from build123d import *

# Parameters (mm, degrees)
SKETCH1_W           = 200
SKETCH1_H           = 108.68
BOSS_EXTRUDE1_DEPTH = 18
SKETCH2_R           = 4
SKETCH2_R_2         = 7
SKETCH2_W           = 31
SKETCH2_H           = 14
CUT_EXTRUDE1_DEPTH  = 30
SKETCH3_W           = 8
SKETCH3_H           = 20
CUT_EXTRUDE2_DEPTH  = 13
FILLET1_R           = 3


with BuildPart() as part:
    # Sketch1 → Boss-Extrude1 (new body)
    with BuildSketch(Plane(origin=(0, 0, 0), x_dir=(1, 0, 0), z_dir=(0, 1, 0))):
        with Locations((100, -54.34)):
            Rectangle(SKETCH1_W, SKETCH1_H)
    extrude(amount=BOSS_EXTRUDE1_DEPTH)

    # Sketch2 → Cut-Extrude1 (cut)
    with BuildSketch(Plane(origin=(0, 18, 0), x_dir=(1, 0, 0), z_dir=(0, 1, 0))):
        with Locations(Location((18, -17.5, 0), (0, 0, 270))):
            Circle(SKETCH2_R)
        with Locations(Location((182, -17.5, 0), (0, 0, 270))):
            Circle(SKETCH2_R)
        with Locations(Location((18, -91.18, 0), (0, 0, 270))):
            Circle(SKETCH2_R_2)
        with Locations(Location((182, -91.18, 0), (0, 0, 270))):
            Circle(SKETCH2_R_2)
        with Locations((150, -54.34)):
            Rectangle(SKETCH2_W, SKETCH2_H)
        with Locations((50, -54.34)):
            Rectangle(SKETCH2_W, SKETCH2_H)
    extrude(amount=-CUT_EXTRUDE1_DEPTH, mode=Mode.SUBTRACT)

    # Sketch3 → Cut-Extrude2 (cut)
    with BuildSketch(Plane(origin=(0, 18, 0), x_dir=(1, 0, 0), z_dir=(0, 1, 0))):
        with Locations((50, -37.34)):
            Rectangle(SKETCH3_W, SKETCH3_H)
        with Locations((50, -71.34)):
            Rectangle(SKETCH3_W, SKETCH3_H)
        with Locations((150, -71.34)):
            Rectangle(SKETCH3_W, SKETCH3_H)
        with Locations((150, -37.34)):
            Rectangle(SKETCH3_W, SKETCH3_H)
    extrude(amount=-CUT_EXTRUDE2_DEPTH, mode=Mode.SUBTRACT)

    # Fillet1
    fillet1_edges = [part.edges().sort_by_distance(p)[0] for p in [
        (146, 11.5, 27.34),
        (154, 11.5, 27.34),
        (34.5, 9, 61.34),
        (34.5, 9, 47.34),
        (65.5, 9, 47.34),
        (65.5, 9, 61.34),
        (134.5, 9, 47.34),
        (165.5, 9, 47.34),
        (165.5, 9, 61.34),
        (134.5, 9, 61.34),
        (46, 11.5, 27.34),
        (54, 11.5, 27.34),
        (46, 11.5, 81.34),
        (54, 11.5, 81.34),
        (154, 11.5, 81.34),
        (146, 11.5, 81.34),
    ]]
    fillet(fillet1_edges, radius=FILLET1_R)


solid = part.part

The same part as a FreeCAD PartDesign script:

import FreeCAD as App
import Part
import Sketcher

V = App.Vector


def edges_at(feature, points):
    """Names of the edges that pass closest to the given points."""
    edges = feature.Shape.Edges
    near = lambda p: min(range(len(edges)), key=lambda i: edges[i].distToShape(Part.Vertex(*p))[0])
    return sorted({f"Edge{near(p) + 1}" for p in points})


def add_polygon(sketch, points):
    """Adds a closed chain of lines whose ends are joined by coincident constraints."""
    first, n = sketch.GeometryCount, len(points)
    for a, b in zip(points, points[1:] + points[:1]):
        sketch.addGeometry(Part.LineSegment(App.Vector(*a, 0), App.Vector(*b, 0)), False)
    for i in range(n):
        sketch.addConstraint(Sketcher.Constraint("Coincident", first + i, 2, first + (i + 1) % n, 1))

doc = App.newDocument("Part")
body = doc.addObject("PartDesign::Body", "Body")

# Sketch on XZ plane
sketch1 = doc.addObject("Sketcher::SketchObject", "Sketch")
body.addObject(sketch1)
sketch1.AttachmentSupport = (doc.XZ_Plane, [""])
sketch1.MapMode = "FlatFace"
add_polygon(sketch1, [(0, 0), (0, 109), (200, 109), (200, 0)])  # lines 0-3
sketch1.addConstraint([
    Sketcher.Constraint("Vertical", 0),
    Sketcher.Constraint("Horizontal", 1),
    Sketcher.Constraint("Vertical", 2),
    Sketcher.Constraint("Horizontal", 3),
    Sketcher.Constraint("Coincident", 3, 2, -1, 1),
    Sketcher.Constraint("DistanceX", 1, 1, 1, 2, 200.0),
    Sketcher.Constraint("DistanceY", 0, 1, 0, 2, 108.68),
])
pad1 = doc.addObject("PartDesign::Pad", "Pad")
body.addObject(pad1)
pad1.Profile = sketch1
pad1.Length = 18
pad1.Reversed = True

# Sketch on XZ plane
sketch2 = doc.addObject("Sketcher::SketchObject", "Sketch001")
body.addObject(sketch2)
sketch2.AttachmentSupport = (doc.XZ_Plane, [""])
sketch2.MapMode = "FlatFace"
sketch2.AttachmentOffset = App.Placement(V(0, 0, -18), App.Rotation())
sketch2.addGeometry(Part.Circle(V(18, 17.5, 0), V(0, 0, 1), 4), False)  # 0
sketch2.addGeometry(Part.Circle(V(182, 17.5, 0), V(0, 0, 1), 4), False)  # 1
sketch2.addGeometry(Part.Circle(V(18, 91.2, 0), V(0, 0, 1), 7), False)  # 2
sketch2.addGeometry(Part.Circle(V(182, 91.2, 0), V(0, 0, 1), 7), False)  # 3
add_polygon(sketch2, [(134.5, 47.3), (134.5, 61.3), (165.5, 61.3), (165.5, 47.3)])  # lines 4-7
add_polygon(sketch2, [(34.5, 47.3), (34.5, 61.3), (65.5, 61.3), (65.5, 47.3)])  # lines 8-11
sketch2.addConstraint([
    Sketcher.Constraint("Vertical", 4),
    Sketcher.Constraint("Horizontal", 5),
    Sketcher.Constraint("Vertical", 6),
    Sketcher.Constraint("Horizontal", 7),
    Sketcher.Constraint("Vertical", 8),
    Sketcher.Constraint("Horizontal", 9),
    Sketcher.Constraint("Vertical", 10),
    Sketcher.Constraint("Horizontal", 11),
    Sketcher.Constraint("Equal", 0, 1),
    Sketcher.Constraint("Equal", 2, 3),
    Sketcher.Constraint("Horizontal", 0, 3, 1, 3),
    Sketcher.Constraint("Horizontal", 2, 3, 3, 3),
    Sketcher.Constraint("Horizontal", 5, 2, 8, 2),
    Sketcher.Constraint("Horizontal", 7, 2, 10, 2),
    Sketcher.Constraint("Vertical", 0, 3, 2, 3),
    Sketcher.Constraint("Vertical", 1, 3, 3, 3),
    Sketcher.Constraint("Equal", 7, 9),
    Sketcher.Constraint("Diameter", 0, 8.0),
    Sketcher.Constraint("Diameter", 2, 14.0),
    Sketcher.Constraint("DistanceX", 5, 1, 5, 2, 31.0),
    Sketcher.Constraint("DistanceY", 4, 1, 4, 2, 14.0),
    Sketcher.Constraint("DistanceX", -1, 1, 0, 3, 18.0),
    Sketcher.Constraint("DistanceX", -1, 1, 1, 3, 182.0),
    Sketcher.Constraint("DistanceX", 8, 2, 4, 2, 100.0),
    Sketcher.Constraint("DistanceY", -1, 1, 0, 3, 17.5),
    Sketcher.Constraint("DistanceX", -1, 1, 4, 2, 134.5),
    Sketcher.Constraint("DistanceY", -1, 1, 2, 3, 91.18),
    Sketcher.Constraint("DistanceY", -1, 1, 4, 2, 61.34),
])
pocket1 = doc.addObject("PartDesign::Pocket", "Pocket")
body.addObject(pocket1)
pocket1.Profile = sketch2
pocket1.Length = 30
pocket1.Reversed = True

# Sketch on XZ plane
sketch3 = doc.addObject("Sketcher::SketchObject", "Sketch002")
body.addObject(sketch3)
sketch3.AttachmentSupport = (doc.XZ_Plane, [""])
sketch3.MapMode = "FlatFace"
sketch3.AttachmentOffset = App.Placement(V(0, 0, -18), App.Rotation())
add_polygon(sketch3, [(46, 27), (46, 47), (54, 47), (54, 27)])  # lines 0-3
add_polygon(sketch3, [(46, 61), (46, 81), (54, 81), (54, 61)])  # lines 4-7
add_polygon(sketch3, [(146, 61), (146, 81), (154, 81), (154, 61)])  # lines 8-11
add_polygon(sketch3, [(146, 27), (146, 47), (154, 47), (154, 27)])  # lines 12-15
sketch3.addConstraint([
    Sketcher.Constraint("Vertical", 0),
    Sketcher.Constraint("Horizontal", 1),
    Sketcher.Constraint("Vertical", 2),
    Sketcher.Constraint("Horizontal", 3),
    Sketcher.Constraint("Vertical", 4),
    Sketcher.Constraint("Horizontal", 5),
    Sketcher.Constraint("Vertical", 6),
    Sketcher.Constraint("Horizontal", 7),
    Sketcher.Constraint("Vertical", 8),
    Sketcher.Constraint("Horizontal", 9),
    Sketcher.Constraint("Vertical", 10),
    Sketcher.Constraint("Horizontal", 11),
    Sketcher.Constraint("Vertical", 12),
    Sketcher.Constraint("Horizontal", 13),
    Sketcher.Constraint("Vertical", 14),
    Sketcher.Constraint("Horizontal", 15),
    Sketcher.Constraint("Horizontal", 5, 2, 8, 2),
    Sketcher.Constraint("Horizontal", 7, 2, 10, 2),
    Sketcher.Constraint("Horizontal", 1, 2, 12, 2),
    Sketcher.Constraint("Horizontal", 3, 2, 14, 2),
    Sketcher.Constraint("Vertical", 3, 2, 4, 2),
    Sketcher.Constraint("Vertical", 2, 2, 5, 2),
    Sketcher.Constraint("Vertical", 11, 2, 12, 2),
    Sketcher.Constraint("Vertical", 10, 2, 13, 2),
    Sketcher.Constraint("Equal", 7, 9),
    Sketcher.Constraint("Equal", 2, 4),
    Sketcher.Constraint("DistanceX", 1, 1, 1, 2, 8.0),
    Sketcher.Constraint("DistanceY", 0, 1, 0, 2, 20.0),
    Sketcher.Constraint("DistanceX", -1, 1, 0, 2, 46.0),
    Sketcher.Constraint("DistanceX", -1, 1, 8, 2, 146.0),
    Sketcher.Constraint("DistanceY", 0, 2, 4, 2, 34.0),
    Sketcher.Constraint("DistanceY", -1, 1, 0, 2, 47.34),
])
pocket2 = doc.addObject("PartDesign::Pocket", "Pocket001")
body.addObject(pocket2)
pocket2.Profile = sketch3
pocket2.Length = 13
pocket2.Reversed = True
doc.recompute()

fillet = doc.addObject("PartDesign::Fillet", "Fillet")
body.addObject(fillet)
fillet.Base = (pocket2, edges_at(pocket2, [
    (146, 11.5, 27.34),
    (154, 11.5, 27.34),
    (34.5, 9, 61.34),
    (34.5, 9, 47.34),
    (65.5, 9, 47.34),
    (65.5, 9, 61.34),
    (134.5, 9, 47.34),
    (165.5, 9, 47.34),
    (165.5, 9, 61.34),
    (134.5, 9, 61.34),
    (46, 11.5, 27.34),
    (54, 11.5, 27.34),
    (46, 11.5, 81.34),
    (54, 11.5, 81.34),
    (154, 11.5, 81.34),
    (146, 11.5, 81.34),
]))
fillet.Radius = 3

doc.recompute()
